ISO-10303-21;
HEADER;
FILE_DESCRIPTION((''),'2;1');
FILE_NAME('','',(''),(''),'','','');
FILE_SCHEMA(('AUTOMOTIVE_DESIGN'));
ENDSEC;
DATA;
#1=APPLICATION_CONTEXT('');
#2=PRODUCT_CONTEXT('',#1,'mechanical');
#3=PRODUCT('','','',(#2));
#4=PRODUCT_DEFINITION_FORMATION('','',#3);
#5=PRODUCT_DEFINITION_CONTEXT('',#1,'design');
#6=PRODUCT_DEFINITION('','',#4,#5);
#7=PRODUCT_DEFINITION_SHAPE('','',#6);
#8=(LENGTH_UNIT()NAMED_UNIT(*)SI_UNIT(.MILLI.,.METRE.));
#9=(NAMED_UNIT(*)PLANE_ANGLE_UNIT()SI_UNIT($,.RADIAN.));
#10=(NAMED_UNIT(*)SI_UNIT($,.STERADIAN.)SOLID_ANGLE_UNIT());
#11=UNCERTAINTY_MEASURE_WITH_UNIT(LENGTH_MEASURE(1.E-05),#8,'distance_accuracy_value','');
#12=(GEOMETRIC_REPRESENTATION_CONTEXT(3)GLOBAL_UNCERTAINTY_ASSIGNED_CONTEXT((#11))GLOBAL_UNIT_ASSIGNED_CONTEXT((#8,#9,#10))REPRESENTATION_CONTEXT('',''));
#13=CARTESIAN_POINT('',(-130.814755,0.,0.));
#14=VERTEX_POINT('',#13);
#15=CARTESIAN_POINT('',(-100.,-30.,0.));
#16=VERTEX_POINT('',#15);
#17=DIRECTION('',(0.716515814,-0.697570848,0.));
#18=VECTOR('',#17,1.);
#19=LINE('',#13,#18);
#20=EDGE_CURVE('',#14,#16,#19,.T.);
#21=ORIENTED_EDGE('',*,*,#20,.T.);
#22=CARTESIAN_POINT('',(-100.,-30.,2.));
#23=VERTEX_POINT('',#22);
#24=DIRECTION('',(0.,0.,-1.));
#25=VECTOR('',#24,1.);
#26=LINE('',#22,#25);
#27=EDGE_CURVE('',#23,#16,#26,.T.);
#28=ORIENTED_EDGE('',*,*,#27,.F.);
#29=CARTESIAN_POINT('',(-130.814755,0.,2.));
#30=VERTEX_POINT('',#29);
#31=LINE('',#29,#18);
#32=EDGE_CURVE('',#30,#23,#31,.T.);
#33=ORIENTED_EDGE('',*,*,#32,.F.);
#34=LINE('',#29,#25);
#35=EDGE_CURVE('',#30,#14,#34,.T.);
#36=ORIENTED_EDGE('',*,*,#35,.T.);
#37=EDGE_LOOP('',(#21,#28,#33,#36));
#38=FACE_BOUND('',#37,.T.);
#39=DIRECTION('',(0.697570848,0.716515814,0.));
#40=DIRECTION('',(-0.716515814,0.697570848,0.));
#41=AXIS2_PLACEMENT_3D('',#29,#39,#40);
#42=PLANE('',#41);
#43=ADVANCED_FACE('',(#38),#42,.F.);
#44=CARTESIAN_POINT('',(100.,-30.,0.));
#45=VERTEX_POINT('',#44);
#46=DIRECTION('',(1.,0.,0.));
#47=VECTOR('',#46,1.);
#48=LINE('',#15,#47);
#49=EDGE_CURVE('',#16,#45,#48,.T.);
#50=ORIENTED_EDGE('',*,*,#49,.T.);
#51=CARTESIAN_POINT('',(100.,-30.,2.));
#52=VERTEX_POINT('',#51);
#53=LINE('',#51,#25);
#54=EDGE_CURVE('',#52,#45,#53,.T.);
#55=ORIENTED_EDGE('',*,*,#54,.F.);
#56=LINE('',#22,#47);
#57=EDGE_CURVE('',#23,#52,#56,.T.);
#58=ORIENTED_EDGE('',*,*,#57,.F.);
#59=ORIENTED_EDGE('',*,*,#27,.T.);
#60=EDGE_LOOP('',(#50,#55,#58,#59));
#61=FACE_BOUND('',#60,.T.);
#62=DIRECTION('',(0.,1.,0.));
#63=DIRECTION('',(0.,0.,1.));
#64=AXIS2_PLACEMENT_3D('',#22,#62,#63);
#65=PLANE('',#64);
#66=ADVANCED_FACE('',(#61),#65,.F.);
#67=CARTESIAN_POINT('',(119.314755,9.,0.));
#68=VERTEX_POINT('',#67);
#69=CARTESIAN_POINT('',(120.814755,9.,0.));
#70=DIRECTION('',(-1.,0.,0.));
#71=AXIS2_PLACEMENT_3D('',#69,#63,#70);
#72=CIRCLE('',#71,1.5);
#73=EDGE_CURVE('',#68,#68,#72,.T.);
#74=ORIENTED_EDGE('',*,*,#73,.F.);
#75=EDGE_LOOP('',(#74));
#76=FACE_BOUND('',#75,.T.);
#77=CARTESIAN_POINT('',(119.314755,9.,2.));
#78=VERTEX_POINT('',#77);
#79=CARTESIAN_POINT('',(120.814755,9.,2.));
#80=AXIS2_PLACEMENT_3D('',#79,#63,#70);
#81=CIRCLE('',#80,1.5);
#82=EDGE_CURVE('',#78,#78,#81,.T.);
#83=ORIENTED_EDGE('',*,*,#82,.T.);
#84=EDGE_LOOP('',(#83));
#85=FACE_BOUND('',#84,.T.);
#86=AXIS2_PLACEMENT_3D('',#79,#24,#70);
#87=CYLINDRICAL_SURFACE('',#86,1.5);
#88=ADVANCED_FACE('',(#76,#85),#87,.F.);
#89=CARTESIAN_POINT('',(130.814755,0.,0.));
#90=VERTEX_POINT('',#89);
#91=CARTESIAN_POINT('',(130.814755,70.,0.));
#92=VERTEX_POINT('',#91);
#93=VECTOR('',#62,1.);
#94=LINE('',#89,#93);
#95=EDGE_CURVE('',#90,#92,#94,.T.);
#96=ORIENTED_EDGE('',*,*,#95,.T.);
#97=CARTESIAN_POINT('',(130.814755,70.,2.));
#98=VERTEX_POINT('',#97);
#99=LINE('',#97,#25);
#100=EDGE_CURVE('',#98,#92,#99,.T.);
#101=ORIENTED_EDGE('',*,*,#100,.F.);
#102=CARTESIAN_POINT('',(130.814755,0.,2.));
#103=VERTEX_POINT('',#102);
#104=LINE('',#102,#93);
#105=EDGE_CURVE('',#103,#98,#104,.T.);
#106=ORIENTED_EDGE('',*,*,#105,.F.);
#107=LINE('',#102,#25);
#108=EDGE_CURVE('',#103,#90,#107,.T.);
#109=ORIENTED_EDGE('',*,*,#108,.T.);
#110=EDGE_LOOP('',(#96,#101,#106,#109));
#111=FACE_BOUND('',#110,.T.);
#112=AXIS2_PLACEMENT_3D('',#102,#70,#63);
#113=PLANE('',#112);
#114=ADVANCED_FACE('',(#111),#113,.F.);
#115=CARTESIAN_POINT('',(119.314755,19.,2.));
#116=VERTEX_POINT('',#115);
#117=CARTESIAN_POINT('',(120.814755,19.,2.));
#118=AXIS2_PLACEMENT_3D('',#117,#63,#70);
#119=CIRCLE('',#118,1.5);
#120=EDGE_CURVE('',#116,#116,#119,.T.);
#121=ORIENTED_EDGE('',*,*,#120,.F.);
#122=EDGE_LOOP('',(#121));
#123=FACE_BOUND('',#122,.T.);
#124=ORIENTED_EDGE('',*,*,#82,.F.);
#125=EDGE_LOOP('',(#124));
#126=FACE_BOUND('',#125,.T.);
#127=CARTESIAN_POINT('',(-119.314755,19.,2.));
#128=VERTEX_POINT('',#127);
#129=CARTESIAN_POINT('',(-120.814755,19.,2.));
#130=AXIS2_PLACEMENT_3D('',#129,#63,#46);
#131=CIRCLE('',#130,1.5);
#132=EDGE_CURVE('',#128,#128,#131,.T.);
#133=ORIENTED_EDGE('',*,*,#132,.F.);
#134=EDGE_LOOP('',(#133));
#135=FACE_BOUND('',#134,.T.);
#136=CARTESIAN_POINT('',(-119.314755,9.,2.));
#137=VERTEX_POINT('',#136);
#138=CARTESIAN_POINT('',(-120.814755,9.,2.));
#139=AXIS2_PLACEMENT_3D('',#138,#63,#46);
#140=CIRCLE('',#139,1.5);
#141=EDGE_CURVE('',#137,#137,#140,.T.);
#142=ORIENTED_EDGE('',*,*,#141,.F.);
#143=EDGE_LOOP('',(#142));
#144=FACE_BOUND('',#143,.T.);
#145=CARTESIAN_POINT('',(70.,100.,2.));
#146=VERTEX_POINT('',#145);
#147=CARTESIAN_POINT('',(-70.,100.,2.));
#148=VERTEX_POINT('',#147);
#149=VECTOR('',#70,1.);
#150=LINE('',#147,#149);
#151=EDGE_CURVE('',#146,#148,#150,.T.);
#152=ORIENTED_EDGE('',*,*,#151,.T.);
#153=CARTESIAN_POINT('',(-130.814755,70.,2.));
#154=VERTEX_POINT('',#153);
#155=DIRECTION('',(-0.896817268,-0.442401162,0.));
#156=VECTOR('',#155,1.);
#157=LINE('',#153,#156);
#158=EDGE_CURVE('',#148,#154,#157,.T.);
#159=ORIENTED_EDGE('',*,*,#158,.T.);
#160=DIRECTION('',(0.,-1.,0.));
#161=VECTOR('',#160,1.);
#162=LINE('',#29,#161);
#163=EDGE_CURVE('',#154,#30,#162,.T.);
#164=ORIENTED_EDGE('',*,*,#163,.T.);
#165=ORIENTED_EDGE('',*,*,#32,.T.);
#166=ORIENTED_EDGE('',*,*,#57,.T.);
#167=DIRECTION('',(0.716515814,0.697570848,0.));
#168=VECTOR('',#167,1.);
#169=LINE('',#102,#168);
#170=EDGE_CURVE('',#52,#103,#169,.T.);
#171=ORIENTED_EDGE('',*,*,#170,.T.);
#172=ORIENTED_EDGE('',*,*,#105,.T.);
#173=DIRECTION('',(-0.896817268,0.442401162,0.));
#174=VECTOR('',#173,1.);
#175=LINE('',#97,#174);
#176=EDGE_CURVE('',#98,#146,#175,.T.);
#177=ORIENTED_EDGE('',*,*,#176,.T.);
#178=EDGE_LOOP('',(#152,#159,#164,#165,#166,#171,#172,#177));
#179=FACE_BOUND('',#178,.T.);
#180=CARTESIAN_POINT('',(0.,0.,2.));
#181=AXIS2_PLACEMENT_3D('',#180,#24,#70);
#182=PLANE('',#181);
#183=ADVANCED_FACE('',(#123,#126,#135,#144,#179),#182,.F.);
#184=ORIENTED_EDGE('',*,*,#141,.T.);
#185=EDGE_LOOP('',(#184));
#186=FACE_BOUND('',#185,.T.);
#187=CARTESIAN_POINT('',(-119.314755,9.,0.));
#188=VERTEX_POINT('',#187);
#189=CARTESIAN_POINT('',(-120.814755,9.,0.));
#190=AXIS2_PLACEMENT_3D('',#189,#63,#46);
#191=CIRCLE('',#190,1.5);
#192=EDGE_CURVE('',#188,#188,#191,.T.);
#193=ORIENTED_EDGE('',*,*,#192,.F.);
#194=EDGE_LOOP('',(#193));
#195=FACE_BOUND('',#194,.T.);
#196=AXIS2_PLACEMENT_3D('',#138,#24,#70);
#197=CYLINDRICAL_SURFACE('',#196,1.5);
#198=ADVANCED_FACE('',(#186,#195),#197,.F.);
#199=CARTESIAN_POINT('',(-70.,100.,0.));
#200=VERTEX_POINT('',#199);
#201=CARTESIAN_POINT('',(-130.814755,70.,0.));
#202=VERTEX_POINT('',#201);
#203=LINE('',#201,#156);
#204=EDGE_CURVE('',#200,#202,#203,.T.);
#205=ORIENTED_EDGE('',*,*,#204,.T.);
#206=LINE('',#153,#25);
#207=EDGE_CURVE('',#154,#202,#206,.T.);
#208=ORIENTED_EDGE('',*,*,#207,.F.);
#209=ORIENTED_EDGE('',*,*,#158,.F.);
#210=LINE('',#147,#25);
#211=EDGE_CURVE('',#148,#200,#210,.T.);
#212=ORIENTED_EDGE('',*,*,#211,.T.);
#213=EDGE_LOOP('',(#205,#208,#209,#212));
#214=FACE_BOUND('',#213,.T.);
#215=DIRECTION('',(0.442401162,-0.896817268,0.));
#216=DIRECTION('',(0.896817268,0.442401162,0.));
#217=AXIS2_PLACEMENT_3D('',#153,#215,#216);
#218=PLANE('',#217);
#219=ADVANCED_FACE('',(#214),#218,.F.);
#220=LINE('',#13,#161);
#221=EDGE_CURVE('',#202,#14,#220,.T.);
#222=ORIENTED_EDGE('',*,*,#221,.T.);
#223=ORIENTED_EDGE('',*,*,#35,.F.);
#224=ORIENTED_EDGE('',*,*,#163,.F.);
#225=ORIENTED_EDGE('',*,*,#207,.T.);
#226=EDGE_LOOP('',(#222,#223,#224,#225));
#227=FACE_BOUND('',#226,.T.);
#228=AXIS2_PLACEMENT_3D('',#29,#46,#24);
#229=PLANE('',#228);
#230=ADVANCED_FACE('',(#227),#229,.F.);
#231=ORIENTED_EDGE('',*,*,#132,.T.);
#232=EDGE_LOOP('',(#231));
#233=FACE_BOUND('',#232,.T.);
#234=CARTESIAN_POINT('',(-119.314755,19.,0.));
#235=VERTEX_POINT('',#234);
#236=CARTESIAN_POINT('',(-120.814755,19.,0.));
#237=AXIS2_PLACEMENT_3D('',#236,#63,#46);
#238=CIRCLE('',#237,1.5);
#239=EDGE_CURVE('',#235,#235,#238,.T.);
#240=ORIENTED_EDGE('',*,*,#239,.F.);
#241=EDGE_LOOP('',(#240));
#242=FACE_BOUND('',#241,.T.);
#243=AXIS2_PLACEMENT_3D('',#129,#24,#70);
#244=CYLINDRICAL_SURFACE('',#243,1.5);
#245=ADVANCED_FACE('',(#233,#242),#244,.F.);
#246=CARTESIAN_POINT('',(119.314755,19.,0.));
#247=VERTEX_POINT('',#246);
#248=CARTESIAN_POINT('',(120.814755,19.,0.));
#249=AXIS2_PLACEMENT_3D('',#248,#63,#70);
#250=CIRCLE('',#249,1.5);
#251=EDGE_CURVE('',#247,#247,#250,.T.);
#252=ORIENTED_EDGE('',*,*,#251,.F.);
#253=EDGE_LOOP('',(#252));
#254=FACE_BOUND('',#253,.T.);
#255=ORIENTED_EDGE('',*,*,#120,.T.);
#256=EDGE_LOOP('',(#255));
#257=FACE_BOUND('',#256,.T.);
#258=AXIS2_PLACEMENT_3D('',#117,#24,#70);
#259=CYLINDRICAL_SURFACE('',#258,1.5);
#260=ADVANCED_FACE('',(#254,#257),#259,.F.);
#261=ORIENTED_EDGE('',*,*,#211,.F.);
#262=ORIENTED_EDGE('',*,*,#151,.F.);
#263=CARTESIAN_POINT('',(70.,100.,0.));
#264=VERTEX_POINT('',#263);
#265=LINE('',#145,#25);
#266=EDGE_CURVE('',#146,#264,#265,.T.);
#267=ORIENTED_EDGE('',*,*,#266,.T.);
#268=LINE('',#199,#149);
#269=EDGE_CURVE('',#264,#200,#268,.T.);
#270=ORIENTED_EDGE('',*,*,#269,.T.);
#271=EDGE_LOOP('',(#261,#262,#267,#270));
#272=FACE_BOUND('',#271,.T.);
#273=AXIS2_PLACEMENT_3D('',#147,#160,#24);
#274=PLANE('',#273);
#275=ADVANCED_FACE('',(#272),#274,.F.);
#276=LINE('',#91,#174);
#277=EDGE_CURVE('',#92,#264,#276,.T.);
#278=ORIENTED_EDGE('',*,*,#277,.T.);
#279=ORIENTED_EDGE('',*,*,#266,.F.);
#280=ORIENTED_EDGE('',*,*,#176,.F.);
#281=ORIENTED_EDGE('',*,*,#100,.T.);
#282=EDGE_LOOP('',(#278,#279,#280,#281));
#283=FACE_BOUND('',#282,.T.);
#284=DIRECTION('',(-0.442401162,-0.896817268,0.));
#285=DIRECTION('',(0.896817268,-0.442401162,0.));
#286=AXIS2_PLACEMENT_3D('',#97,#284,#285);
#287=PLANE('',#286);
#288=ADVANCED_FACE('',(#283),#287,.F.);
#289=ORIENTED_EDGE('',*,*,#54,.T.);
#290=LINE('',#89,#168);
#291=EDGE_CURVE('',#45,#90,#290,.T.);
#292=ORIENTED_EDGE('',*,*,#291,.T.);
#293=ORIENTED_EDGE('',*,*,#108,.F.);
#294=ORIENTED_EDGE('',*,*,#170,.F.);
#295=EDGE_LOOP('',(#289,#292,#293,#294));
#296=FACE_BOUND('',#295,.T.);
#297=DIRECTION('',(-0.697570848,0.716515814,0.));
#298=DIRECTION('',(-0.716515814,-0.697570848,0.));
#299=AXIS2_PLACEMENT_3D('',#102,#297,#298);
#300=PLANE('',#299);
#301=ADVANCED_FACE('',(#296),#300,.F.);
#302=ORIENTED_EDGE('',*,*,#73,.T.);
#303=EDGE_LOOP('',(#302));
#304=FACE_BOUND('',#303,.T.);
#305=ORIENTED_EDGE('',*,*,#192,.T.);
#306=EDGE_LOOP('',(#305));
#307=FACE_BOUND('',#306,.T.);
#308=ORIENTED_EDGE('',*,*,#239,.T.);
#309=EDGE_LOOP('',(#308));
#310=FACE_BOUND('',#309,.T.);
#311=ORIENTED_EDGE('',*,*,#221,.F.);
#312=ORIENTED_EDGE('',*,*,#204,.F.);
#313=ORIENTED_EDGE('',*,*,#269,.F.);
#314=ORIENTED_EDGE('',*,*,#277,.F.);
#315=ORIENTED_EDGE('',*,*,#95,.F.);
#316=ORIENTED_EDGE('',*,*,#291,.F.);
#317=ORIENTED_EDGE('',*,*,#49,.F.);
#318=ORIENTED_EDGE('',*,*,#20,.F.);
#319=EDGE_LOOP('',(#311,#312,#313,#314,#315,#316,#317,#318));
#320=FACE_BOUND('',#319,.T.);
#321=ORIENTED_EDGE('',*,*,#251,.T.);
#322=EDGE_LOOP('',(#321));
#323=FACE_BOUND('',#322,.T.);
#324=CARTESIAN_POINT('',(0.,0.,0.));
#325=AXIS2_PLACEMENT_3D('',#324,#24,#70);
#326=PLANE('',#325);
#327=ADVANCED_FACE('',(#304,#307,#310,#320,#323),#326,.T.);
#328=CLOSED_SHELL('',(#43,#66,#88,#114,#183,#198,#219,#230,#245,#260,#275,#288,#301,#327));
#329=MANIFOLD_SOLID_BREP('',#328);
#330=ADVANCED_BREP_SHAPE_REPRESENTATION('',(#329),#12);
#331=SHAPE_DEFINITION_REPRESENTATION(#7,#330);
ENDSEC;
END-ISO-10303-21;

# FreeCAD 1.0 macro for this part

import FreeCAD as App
import Part
import Sketcher


def add_polygon(sketch, points):
    """Adds a closed chain of lines whose ends are joined by coincident constraints."""
    first, n = sketch.GeometryCount, len(points)
    for a, b in zip(points, points[1:] + points[:1]):
        sketch.addGeometry(Part.LineSegment(App.Vector(*a, 0), App.Vector(*b, 0)), False)
    for i in range(n):
        sketch.addConstraint(Sketcher.Constraint("Coincident", first + i, 2, first + (i + 1) % n, 1))

doc = App.newDocument("Part")
body = doc.addObject("PartDesign::Body", "Body")

sketch1 = doc.addObject("Sketcher::SketchObject", "Sketch")
body.addObject(sketch1)
sketch1.AttachmentSupport = (doc.XY_Plane, [""])
sketch1.MapMode = "FlatFace"
add_polygon(sketch1, [(-130.8, 70), (-130.8, 0), (-100, -30), (100, -30), (130.8, 0), (130.8, 70), (70, 100), (-70, 100)])
sketch1.addGeometry(Part.Circle(App.Vector(120.8, 9, 0), App.Vector(0, 0, 1), 1.5), False)
sketch1.addGeometry(Part.Circle(App.Vector(-120.8, 9, 0), App.Vector(0, 0, 1), 1.5), False)
sketch1.addGeometry(Part.Circle(App.Vector(120.8, 19, 0), App.Vector(0, 0, 1), 1.5), False)
sketch1.addGeometry(Part.Circle(App.Vector(-120.8, 19, 0), App.Vector(0, 0, 1), 1.5), False)
sketch1.addConstraint(Sketcher.Constraint("Vertical", 0))
sketch1.addConstraint(Sketcher.Constraint("Horizontal", 2))
sketch1.addConstraint(Sketcher.Constraint("Vertical", 4))
sketch1.addConstraint(Sketcher.Constraint("Horizontal", 6))
sketch1.addConstraint(Sketcher.Constraint("Equal", 8, 9))
sketch1.addConstraint(Sketcher.Constraint("Equal", 9, 10))
sketch1.addConstraint(Sketcher.Constraint("Equal", 10, 11))
sketch1.addConstraint(Sketcher.Constraint("Symmetric", 0, 2, 3, 2, -1, 1))
sketch1.addConstraint(Sketcher.Constraint("Symmetric", 8, 3, 9, 3, -2))
sketch1.addConstraint(Sketcher.Constraint("Symmetric", 10, 3, 11, 3, -2))
sketch1.addConstraint(Sketcher.Constraint("PointOnObject", 0, 2, -1))
sketch1.addConstraint(Sketcher.Constraint("Horizontal", 4, 2, 7, 2))
sketch1.addConstraint(Sketcher.Constraint("Vertical", 8, 3, 10, 3))
sketch1.addConstraint(Sketcher.Constraint("Equal", 1, 3))
sketch1.addConstraint(Sketcher.Constraint("Equal", 5, 7))
sketch1.addConstraint(Sketcher.Constraint("Diameter", 8, 3.0))
sketch1.addConstraint(Sketcher.Constraint("DistanceX", 2, 1, 2, 2, 200.0))
sketch1.addConstraint(Sketcher.Constraint("DistanceX", 6, 2, 6, 1, 140.0))
sketch1.addConstraint(Sketcher.Constraint("DistanceY", 0, 2, 0, 1, 70.0))
sketch1.addConstraint(Sketcher.Constraint("DistanceY", -1, 1, 8, 3, 9.0))
sketch1.addConstraint(Sketcher.Constraint("DistanceY", -1, 1, 10, 3, 19.0))
sketch1.addConstraint(Sketcher.Constraint("DistanceY", 1, 2, -1, 1, 30.0))
sketch1.addConstraint(Sketcher.Constraint("DistanceY", -1, 1, 5, 2, 100.0))
sketch1.addConstraint(Sketcher.Constraint("DistanceX", 0, 2, 9, 3, 10.0))
sketch1.addConstraint(Sketcher.Constraint("DistanceX", 9, 3, 8, 3, 241.629509))
pad1 = doc.addObject("PartDesign::Pad", "Pad")
body.addObject(pad1)
pad1.Profile = sketch1
pad1.Length = 2

doc.recompute()
